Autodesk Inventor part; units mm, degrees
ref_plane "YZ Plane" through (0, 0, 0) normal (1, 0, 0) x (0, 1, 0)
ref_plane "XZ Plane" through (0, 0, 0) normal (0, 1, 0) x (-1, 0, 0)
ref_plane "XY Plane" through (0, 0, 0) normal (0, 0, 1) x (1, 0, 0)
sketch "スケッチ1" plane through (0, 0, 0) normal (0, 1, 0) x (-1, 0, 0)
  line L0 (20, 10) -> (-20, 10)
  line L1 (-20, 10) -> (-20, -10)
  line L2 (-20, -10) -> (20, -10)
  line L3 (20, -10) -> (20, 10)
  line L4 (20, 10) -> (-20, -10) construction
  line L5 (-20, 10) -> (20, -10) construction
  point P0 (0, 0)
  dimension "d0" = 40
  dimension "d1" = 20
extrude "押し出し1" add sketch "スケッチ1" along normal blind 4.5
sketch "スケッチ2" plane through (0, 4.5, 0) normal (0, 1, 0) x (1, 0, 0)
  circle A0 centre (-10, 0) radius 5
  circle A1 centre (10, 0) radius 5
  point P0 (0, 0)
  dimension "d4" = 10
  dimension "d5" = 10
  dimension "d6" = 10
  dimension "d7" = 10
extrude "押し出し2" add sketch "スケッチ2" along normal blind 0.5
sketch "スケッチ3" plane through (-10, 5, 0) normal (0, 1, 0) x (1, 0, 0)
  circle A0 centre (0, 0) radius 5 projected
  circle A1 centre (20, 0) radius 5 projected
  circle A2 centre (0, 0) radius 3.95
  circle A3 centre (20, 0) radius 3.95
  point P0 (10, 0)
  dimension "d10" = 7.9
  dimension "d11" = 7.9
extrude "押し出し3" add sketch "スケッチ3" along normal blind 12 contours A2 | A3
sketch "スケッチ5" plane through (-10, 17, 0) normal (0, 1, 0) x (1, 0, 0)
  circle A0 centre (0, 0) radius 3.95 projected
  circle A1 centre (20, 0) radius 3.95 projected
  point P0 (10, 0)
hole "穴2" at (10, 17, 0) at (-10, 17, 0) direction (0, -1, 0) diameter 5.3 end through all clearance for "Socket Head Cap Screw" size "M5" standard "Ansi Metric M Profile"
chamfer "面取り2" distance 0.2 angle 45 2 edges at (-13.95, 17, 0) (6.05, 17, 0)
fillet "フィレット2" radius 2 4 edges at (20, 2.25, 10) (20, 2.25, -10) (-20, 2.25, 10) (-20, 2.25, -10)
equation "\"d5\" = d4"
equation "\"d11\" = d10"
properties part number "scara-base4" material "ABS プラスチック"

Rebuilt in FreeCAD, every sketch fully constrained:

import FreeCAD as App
import Part
import Sketcher
from FreeCAD import Vector


def edges_at(feature, points):
    """Names of the edges that pass closest to the given points."""
    edges = feature.Shape.Edges
    near = lambda p: min(range(len(edges)), key=lambda i: edges[i].distToShape(Part.Vertex(*p))[0])
    return sorted({f"Edge{near(p) + 1}" for p in points})


def add_polygon(sketch, points):
    """Adds a closed chain of lines whose ends are joined by coincident constraints."""
    first, n = sketch.GeometryCount, len(points)
    for a, b in zip(points, points[1:] + points[:1]):
        sketch.addGeometry(Part.LineSegment(App.Vector(*a, 0), App.Vector(*b, 0)), False)
    for i in range(n):
        sketch.addConstraint(Sketcher.Constraint("Coincident", first + i, 2, first + (i + 1) % n, 1))

doc = App.newDocument("Part")
body = doc.addObject("PartDesign::Body", "Body")

sketch1 = doc.addObject("Sketcher::SketchObject", "Sketch")
body.addObject(sketch1)
sketch1.AttachmentSupport = (doc.XZ_Plane, [""])
sketch1.MapMode = "FlatFace"
add_polygon(sketch1, [(-20, -10), (-20, 10), (20, 10), (20, -10)])
sketch1.addConstraint([
    Sketcher.Constraint("Vertical", 0),
    Sketcher.Constraint("Horizontal", 1),
    Sketcher.Constraint("Vertical", 2),
    Sketcher.Constraint("Horizontal", 3),
    Sketcher.Constraint("Symmetric", 0, 2, 2, 2, -1, 1),
    Sketcher.Constraint("DistanceX", 1, 1, 1, 2, 40.0),
    Sketcher.Constraint("DistanceY", 0, 1, 0, 2, 20.0),
])
pad1 = doc.addObject("PartDesign::Pad", "Pad")
body.addObject(pad1)
pad1.Profile = sketch1
pad1.Length = 4.5
pad1.Reversed = True

sketch2 = doc.addObject("Sketcher::SketchObject", "Sketch001")
body.addObject(sketch2)
sketch2.AttachmentSupport = (doc.XZ_Plane, [""])
sketch2.MapMode = "FlatFace"
sketch2.AttachmentOffset = App.Placement(Vector(0, 0, -4.5), App.Rotation())
sketch2.addGeometry([
    Part.Circle(Vector(-10, 0, 0), Vector(0, 0, 1), 5),
    Part.Circle(Vector(10, 0, 0), Vector(0, 0, 1), 5),
], False)
sketch2.addConstraint([
    Sketcher.Constraint("Equal", 0, 1),
    Sketcher.Constraint("Symmetric", 0, 3, 1, 3, -1, 1),
    Sketcher.Constraint("PointOnObject", 0, 3, -1),
    Sketcher.Constraint("Diameter", 0, 10.0),
    Sketcher.Constraint("DistanceX", 0, 3, -1, 1, 10.0),
])
pad2 = doc.addObject("PartDesign::Pad", "Pad001")
body.addObject(pad2)
pad2.Profile = sketch2
pad2.Length = 0.5
pad2.Reversed = True

sketch3 = doc.addObject("Sketcher::SketchObject", "Sketch002")
body.addObject(sketch3)
sketch3.AttachmentSupport = (doc.XZ_Plane, [""])
sketch3.MapMode = "FlatFace"
sketch3.AttachmentOffset = App.Placement(Vector(0, 0, -5), App.Rotation())
sketch3.addGeometry([
    Part.Circle(Vector(-10, 0, 0), Vector(0, 0, 1), 4),
    Part.Circle(Vector(10, 0, 0), Vector(0, 0, 1), 4),
], False)
sketch3.addConstraint([
    Sketcher.Constraint("Equal", 0, 1),
    Sketcher.Constraint("Symmetric", 0, 3, 1, 3, -1, 1),
    Sketcher.Constraint("PointOnObject", 0, 3, -1),
    Sketcher.Constraint("Diameter", 0, 7.9),
    Sketcher.Constraint("DistanceX", 0, 3, -1, 1, 10.0),
])
pad3 = doc.addObject("PartDesign::Pad", "Pad002")
body.addObject(pad3)
pad3.Profile = sketch3
pad3.Length = 12
pad3.Reversed = True

sketch4 = doc.addObject("Sketcher::SketchObject", "Sketch003")
body.addObject(sketch4)
sketch4.AttachmentSupport = (doc.XZ_Plane, [""])
sketch4.MapMode = "FlatFace"
sketch4.AttachmentOffset = App.Placement(Vector(0, 0, -17), App.Rotation())
sketch4.addGeometry([
    Part.Circle(Vector(10, 0, 0), Vector(0, 0, 1), 2.6),
    Part.Circle(Vector(-10, 0, 0), Vector(0, 0, 1), 2.6),
], False)
sketch4.addConstraint([
    Sketcher.Constraint("Equal", 0, 1),
    Sketcher.Constraint("Symmetric", 0, 3, 1, 3, -1, 1),
    Sketcher.Constraint("PointOnObject", 0, 3, -1),
    Sketcher.Constraint("Diameter", 0, 5.3),
    Sketcher.Constraint("DistanceX", -1, 1, 0, 3, 10.0),
])
doc.recompute()
hole = doc.addObject("PartDesign::Hole", "Hole")
body.addObject(hole)
hole.Profile = sketch4
hole.ThreadType = "None"
hole.Diameter = 5.3
hole.DepthType = "ThroughAll"
hole.Reversed = True
doc.recompute()

chamfer = doc.addObject("PartDesign::Chamfer", "Chamfer")
body.addObject(chamfer)
chamfer.Base = (hole, edges_at(hole, [(-13.95, 17, 0), (6.05, 17, 0)]))
chamfer.Size = 0.2
doc.recompute()

fillet = doc.addObject("PartDesign::Fillet", "Fillet")
body.addObject(fillet)
fillet.Base = (chamfer, edges_at(chamfer, [
    (20, 2.25, 10),
    (20, 2.25, -10),
    (-20, 2.25, 10),
    (-20, 2.25, -10),
]))
fillet.Radius = 2

doc.recompute()
